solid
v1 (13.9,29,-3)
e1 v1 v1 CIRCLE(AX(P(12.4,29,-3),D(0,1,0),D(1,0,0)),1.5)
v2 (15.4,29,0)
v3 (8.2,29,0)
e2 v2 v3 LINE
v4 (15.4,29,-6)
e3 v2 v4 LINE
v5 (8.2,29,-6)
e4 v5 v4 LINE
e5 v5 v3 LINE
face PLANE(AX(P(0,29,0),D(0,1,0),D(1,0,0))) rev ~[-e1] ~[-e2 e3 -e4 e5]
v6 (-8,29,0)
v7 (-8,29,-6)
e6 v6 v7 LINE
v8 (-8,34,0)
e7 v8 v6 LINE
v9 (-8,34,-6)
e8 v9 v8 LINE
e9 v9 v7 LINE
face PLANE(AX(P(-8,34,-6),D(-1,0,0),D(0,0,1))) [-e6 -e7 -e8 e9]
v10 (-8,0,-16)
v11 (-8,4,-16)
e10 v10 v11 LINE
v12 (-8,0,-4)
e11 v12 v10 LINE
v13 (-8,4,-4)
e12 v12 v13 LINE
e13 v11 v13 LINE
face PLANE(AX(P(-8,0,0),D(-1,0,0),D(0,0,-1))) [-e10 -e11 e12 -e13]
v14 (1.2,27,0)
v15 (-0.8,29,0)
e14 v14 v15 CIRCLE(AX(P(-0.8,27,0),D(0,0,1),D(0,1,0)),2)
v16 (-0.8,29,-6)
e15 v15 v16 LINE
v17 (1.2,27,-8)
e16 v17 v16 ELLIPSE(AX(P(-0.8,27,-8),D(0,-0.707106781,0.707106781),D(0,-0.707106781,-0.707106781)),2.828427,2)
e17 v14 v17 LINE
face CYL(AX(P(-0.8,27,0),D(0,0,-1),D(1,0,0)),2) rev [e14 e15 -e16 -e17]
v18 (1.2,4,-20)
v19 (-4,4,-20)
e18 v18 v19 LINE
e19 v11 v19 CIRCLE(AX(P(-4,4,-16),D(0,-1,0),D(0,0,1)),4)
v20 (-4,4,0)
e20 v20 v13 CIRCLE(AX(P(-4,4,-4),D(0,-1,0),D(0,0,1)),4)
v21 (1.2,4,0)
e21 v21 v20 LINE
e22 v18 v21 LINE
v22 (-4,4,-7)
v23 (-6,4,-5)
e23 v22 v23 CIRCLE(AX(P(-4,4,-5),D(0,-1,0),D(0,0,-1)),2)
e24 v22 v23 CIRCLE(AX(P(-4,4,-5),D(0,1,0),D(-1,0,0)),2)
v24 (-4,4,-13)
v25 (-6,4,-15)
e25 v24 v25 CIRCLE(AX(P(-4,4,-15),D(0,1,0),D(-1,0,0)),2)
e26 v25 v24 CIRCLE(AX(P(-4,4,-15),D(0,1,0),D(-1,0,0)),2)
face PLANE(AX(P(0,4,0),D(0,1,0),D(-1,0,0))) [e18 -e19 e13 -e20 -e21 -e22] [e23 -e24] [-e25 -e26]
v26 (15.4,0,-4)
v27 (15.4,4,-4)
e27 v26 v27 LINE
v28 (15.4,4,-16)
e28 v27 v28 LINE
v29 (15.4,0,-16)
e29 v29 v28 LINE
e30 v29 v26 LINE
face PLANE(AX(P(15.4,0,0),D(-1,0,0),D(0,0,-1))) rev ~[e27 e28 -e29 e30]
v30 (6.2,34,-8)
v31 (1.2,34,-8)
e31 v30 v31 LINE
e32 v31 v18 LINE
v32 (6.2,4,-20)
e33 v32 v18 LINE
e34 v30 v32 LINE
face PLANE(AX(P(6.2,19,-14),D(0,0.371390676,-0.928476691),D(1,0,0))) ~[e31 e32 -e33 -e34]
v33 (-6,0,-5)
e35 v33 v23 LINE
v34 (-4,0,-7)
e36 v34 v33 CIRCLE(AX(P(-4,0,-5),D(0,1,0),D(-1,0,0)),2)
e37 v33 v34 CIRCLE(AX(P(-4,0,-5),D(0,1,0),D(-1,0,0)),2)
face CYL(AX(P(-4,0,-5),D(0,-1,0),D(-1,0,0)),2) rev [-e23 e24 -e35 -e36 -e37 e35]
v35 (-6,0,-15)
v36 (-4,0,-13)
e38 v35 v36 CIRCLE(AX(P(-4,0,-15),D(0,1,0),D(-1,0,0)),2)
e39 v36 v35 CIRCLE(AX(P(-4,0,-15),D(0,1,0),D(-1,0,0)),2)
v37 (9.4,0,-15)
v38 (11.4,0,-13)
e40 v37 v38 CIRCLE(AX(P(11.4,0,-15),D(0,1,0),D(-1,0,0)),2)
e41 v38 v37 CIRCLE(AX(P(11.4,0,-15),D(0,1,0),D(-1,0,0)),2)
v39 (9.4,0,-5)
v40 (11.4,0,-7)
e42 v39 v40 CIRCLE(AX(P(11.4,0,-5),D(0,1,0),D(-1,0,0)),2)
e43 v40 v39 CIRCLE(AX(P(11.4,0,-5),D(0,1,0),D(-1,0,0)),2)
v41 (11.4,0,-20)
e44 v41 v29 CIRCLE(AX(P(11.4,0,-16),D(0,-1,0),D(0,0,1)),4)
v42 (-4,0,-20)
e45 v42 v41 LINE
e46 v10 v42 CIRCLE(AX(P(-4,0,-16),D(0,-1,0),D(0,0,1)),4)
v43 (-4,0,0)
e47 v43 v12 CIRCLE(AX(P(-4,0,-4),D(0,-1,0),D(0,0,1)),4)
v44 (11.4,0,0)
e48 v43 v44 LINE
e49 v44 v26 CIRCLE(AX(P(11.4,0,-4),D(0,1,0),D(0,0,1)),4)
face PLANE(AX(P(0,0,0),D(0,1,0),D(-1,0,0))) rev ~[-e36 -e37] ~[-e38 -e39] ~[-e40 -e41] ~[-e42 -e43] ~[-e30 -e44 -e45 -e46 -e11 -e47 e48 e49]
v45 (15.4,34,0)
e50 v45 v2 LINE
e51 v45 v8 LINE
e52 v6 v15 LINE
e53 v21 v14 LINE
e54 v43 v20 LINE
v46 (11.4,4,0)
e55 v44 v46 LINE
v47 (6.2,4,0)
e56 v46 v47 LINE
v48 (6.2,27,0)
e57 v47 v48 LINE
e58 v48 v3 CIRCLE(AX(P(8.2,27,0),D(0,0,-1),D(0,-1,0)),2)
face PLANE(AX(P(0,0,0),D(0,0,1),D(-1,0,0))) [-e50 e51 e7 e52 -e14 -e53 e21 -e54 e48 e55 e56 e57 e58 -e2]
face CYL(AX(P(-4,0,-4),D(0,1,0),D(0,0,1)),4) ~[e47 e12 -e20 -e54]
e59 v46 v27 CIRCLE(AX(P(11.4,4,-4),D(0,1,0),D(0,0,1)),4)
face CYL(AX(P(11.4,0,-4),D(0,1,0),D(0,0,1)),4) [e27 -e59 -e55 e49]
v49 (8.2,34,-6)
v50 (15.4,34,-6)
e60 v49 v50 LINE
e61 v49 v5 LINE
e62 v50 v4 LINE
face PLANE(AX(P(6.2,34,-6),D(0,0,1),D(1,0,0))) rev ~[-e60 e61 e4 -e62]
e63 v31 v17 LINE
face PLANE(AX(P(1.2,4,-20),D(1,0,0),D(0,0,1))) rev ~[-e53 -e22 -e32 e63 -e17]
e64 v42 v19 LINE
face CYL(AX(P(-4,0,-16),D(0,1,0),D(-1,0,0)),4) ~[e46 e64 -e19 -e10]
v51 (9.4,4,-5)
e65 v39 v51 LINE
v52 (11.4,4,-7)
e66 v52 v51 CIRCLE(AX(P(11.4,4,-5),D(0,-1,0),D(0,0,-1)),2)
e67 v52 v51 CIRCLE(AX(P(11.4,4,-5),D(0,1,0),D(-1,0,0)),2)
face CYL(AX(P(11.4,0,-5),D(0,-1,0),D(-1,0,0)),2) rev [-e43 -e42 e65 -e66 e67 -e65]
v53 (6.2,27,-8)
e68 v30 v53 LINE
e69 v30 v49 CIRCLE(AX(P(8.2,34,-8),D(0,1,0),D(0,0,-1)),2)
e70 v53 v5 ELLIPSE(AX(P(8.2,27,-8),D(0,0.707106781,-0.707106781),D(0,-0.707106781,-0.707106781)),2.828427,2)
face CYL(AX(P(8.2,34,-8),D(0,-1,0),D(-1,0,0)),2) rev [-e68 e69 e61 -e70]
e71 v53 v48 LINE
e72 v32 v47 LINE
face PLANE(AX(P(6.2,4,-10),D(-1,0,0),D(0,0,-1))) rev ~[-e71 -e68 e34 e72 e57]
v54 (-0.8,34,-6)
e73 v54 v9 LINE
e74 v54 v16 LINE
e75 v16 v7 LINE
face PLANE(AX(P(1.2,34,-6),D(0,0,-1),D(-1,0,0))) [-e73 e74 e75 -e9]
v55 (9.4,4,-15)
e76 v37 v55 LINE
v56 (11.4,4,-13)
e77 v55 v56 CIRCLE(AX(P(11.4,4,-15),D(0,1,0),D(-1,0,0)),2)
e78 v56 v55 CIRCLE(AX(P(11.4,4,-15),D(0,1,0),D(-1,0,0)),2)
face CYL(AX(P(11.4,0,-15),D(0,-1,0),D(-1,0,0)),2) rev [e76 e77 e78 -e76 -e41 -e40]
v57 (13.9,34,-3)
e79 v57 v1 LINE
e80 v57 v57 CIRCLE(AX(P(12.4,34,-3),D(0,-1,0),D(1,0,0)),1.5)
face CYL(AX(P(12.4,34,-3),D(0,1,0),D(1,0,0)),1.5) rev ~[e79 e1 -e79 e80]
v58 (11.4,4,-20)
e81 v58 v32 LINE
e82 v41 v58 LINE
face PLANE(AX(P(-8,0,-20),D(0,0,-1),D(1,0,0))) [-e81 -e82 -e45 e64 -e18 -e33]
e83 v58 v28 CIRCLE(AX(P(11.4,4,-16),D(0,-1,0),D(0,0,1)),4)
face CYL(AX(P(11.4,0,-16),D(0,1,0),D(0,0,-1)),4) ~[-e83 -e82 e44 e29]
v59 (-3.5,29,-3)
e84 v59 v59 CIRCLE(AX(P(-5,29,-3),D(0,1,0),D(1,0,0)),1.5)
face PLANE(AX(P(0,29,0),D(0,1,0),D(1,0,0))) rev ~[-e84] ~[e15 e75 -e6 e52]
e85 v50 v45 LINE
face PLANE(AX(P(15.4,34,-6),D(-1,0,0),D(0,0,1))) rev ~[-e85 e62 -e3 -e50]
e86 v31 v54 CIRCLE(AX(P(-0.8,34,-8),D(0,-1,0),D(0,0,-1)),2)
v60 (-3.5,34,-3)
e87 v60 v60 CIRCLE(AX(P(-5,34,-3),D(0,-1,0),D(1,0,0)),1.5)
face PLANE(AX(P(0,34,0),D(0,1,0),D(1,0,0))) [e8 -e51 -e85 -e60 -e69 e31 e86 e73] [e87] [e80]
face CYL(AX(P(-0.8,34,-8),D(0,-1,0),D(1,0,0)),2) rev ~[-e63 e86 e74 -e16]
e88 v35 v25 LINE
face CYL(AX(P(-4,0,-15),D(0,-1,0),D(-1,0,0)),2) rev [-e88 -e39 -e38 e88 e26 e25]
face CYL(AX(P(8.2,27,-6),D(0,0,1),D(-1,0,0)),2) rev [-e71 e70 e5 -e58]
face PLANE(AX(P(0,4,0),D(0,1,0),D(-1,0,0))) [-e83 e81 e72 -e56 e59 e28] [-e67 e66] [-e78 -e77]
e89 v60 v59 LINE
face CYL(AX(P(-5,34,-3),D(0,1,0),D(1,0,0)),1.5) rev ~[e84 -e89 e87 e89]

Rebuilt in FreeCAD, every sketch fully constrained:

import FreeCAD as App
import Part
import Sketcher
from FreeCAD import Vector
Q = App.Units.Quantity


def edges_at(feature, points):
    """Names of the edges that pass closest to the given points."""
    edges = feature.Shape.Edges
    near = lambda p: min(range(len(edges)), key=lambda i: edges[i].distToShape(Part.Vertex(*p))[0])
    return sorted({f"Edge{near(p) + 1}" for p in points})


def add_polygon(sketch, points):
    """Adds a closed chain of lines whose ends are joined by coincident constraints."""
    first, n = sketch.GeometryCount, len(points)
    for a, b in zip(points, points[1:] + points[:1]):
        sketch.addGeometry(Part.LineSegment(App.Vector(*a, 0), App.Vector(*b, 0)), False)
    for i in range(n):
        sketch.addConstraint(Sketcher.Constraint("Coincident", first + i, 2, first + (i + 1) % n, 1))

doc = App.newDocument("Part")
body = doc.addObject("PartDesign::Body", "Body")

sketch1 = doc.addObject("Sketcher::SketchObject", "Sketch")
body.addObject(sketch1)
sketch1.AttachmentSupport = (doc.XZ_Plane, [""])
sketch1.MapMode = "FlatFace"
add_polygon(sketch1, [(15.4, 0), (15.4, -20), (-8, -20), (-8, 0)])
sketch1.addGeometry(Part.Circle(Vector(-4, -5, 0), Vector(0, 0, 1), 2), False)
sketch1.addGeometry(Part.Circle(Vector(-4, -15, 0), Vector(0, 0, 1), 2), False)
sketch1.addGeometry(Part.Circle(Vector(11.4, -5, 0), Vector(0, 0, 1), 2), False)
sketch1.addGeometry(Part.Circle(Vector(11.4, -15, 0), Vector(0, 0, 1), 2), False)
sketch1.addConstraint([
    Sketcher.Constraint("Vertical", 0),
    Sketcher.Constraint("Horizontal", 1),
    Sketcher.Constraint("Vertical", 2),
    Sketcher.Constraint("Horizontal", 3),
    Sketcher.Constraint("Equal", 4, 5),
    Sketcher.Constraint("Equal", 5, 6),
    Sketcher.Constraint("Equal", 6, 7),
    Sketcher.Constraint("PointOnObject", 2, 2, -1),
    Sketcher.Constraint("Horizontal", 4, 3, 6, 3),
    Sketcher.Constraint("Horizontal", 5, 3, 7, 3),
    Sketcher.Constraint("Vertical", 4, 3, 5, 3),
    Sketcher.Constraint("Vertical", 6, 3, 7, 3),
    Sketcher.Constraint("Diameter", 4, Q("4 mm")),
    Sketcher.Constraint("DistanceY", 0, 2, 0, 1, Q("20 mm")),
    Sketcher.Constraint("DistanceX", 4, 3, -1, 1, Q("4 mm")),
    Sketcher.Constraint("DistanceY", 4, 3, -1, 1, Q("5 mm")),
    Sketcher.Constraint("DistanceX", 1, 2, -1, 1, Q("8 mm")),
    Sketcher.Constraint("DistanceY", 5, 3, 4, 3, Q("10 mm")),
    Sketcher.Constraint("DistanceX", 7, 3, 0, 2, Q("4 mm")),
    Sketcher.Constraint("DistanceX", 1, 2, 1, 1, Q("23.4 mm")),
])
pad1 = doc.addObject("PartDesign::Pad", "Pad")
body.addObject(pad1)
pad1.Profile = sketch1
pad1.Length = 4
pad1.Reversed = True
doc.recompute()

fillet = doc.addObject("PartDesign::Fillet", "Fillet")
body.addObject(fillet)
fillet.Base = (pad1, edges_at(pad1, [
    (-8, 2, 0),
    (15.4, 2, 0),
    (15.4, 2, -20),
    (-8, 2, -20),
]))
fillet.Radius = 4

sketch2 = doc.addObject("Sketcher::SketchObject", "Sketch001")
body.addObject(sketch2)
sketch2.AttachmentSupport = (doc.XZ_Plane, [""])
sketch2.MapMode = "FlatFace"
sketch2.AttachmentOffset = App.Placement(Vector(0, 0, -4), App.Rotation())
add_polygon(sketch2, [(1, -20), (1, 0), (6, 0), (6, -20)])
sketch2.addConstraint([
    Sketcher.Constraint("Vertical", 0),
    Sketcher.Constraint("Horizontal", 1),
    Sketcher.Constraint("Vertical", 2),
    Sketcher.Constraint("Horizontal", 3),
    Sketcher.Constraint("PointOnObject", 0, 2, -1),
    Sketcher.Constraint("DistanceX", 1, 1, 1, 2, Q("5 mm")),
    Sketcher.Constraint("DistanceY", 0, 1, 0, 2, Q("20 mm")),
    Sketcher.Constraint("DistanceX", -1, 1, 0, 2, Q("1.2 mm")),
])
pad2 = doc.addObject("PartDesign::Pad", "Pad001")
body.addObject(pad2)
pad2.Profile = sketch2
pad2.Length = 30
pad2.Reversed = True

sketch3 = doc.addObject("Sketcher::SketchObject", "Sketch002")
body.addObject(sketch3)
sketch3.AttachmentSupport = (doc.XZ_Plane, [""])
sketch3.MapMode = "FlatFace"
sketch3.AttachmentOffset = App.Placement(Vector(0, 0, -34), App.Rotation())
add_polygon(sketch3, [(15.4, -6), (6.2, -6), (6.2, 0), (15.4, 0)])
sketch3.addGeometry(Part.Circle(Vector(12.4, -3, 0), Vector(0, 0, 1), 1.5), False)
add_polygon(sketch3, [(1.2, 0), (1.2, -6), (-8, -6), (-8, 0)])
sketch3.addGeometry(Part.Circle(Vector(-5, -3, 0), Vector(0, 0, 1), 1.5), False)
sketch3.addConstraint([
    Sketcher.Constraint("Horizontal", 0),
    Sketcher.Constraint("Vertical", 1),
    Sketcher.Constraint("Horizontal", 2),
    Sketcher.Constraint("Vertical", 3),
    Sketcher.Constraint("Vertical", 5),
    Sketcher.Constraint("Horizontal", 6),
    Sketcher.Constraint("Vertical", 7),
    Sketcher.Constraint("Horizontal", 8),
    Sketcher.Constraint("Equal", 4, 9),
    Sketcher.Constraint("PointOnObject", 1, 2, -1),
    Sketcher.Constraint("PointOnObject", 7, 2, -1),
    Sketcher.Constraint("Horizontal", 4, 3, 9, 3),
    Sketcher.Constraint("Horizontal", 3, 2, 5, 2),
    Sketcher.Constraint("Equal", 2, 6),
    Sketcher.Constraint("Diameter", 4, Q("3 mm")),
    Sketcher.Constraint("DistanceY", 1, 1, 1, 2, Q("6 mm")),
    Sketcher.Constraint("DistanceY", 4, 3, -1, 1, Q("3 mm")),
    Sketcher.Constraint("DistanceX", 4, 3, 2, 2, Q("3 mm")),
    Sketcher.Constraint("DistanceX", 6, 2, 9, 3, Q("3 mm")),
    Sketcher.Constraint("DistanceX", 0, 2, 0, 1, Q("9.2 mm")),
    Sketcher.Constraint("DistanceX", 9, 3, -1, 1, Q("5 mm")),
    Sketcher.Constraint("DistanceX", 5, 2, 0, 2, Q("5 mm")),
])
pad3 = doc.addObject("PartDesign::Pad", "Pad002")
body.addObject(pad3)
pad3.Profile = sketch3
pad3.Length = 5
doc.recompute()

fillet2 = doc.addObject("PartDesign::Fillet", "Fillet001")
body.addObject(fillet2)
fillet2.Base = (pad3, edges_at(pad3, [
    (1.2, 31.5, -6),
    (6.2, 31.5, -6),
    (6.2, 29, -3),
    (1.2, 29, -3),
]))
fillet2.Radius = 2
doc.recompute()

chamfer = doc.addObject("PartDesign::Chamfer", "Chamfer")
body.addObject(chamfer)
chamfer.Base = (fillet2, edges_at(fillet2, [(3.7, 34, -20)]))
chamfer.ChamferType = "Two distances"
chamfer.Size = 12
chamfer.Size2 = 30

doc.recompute()
